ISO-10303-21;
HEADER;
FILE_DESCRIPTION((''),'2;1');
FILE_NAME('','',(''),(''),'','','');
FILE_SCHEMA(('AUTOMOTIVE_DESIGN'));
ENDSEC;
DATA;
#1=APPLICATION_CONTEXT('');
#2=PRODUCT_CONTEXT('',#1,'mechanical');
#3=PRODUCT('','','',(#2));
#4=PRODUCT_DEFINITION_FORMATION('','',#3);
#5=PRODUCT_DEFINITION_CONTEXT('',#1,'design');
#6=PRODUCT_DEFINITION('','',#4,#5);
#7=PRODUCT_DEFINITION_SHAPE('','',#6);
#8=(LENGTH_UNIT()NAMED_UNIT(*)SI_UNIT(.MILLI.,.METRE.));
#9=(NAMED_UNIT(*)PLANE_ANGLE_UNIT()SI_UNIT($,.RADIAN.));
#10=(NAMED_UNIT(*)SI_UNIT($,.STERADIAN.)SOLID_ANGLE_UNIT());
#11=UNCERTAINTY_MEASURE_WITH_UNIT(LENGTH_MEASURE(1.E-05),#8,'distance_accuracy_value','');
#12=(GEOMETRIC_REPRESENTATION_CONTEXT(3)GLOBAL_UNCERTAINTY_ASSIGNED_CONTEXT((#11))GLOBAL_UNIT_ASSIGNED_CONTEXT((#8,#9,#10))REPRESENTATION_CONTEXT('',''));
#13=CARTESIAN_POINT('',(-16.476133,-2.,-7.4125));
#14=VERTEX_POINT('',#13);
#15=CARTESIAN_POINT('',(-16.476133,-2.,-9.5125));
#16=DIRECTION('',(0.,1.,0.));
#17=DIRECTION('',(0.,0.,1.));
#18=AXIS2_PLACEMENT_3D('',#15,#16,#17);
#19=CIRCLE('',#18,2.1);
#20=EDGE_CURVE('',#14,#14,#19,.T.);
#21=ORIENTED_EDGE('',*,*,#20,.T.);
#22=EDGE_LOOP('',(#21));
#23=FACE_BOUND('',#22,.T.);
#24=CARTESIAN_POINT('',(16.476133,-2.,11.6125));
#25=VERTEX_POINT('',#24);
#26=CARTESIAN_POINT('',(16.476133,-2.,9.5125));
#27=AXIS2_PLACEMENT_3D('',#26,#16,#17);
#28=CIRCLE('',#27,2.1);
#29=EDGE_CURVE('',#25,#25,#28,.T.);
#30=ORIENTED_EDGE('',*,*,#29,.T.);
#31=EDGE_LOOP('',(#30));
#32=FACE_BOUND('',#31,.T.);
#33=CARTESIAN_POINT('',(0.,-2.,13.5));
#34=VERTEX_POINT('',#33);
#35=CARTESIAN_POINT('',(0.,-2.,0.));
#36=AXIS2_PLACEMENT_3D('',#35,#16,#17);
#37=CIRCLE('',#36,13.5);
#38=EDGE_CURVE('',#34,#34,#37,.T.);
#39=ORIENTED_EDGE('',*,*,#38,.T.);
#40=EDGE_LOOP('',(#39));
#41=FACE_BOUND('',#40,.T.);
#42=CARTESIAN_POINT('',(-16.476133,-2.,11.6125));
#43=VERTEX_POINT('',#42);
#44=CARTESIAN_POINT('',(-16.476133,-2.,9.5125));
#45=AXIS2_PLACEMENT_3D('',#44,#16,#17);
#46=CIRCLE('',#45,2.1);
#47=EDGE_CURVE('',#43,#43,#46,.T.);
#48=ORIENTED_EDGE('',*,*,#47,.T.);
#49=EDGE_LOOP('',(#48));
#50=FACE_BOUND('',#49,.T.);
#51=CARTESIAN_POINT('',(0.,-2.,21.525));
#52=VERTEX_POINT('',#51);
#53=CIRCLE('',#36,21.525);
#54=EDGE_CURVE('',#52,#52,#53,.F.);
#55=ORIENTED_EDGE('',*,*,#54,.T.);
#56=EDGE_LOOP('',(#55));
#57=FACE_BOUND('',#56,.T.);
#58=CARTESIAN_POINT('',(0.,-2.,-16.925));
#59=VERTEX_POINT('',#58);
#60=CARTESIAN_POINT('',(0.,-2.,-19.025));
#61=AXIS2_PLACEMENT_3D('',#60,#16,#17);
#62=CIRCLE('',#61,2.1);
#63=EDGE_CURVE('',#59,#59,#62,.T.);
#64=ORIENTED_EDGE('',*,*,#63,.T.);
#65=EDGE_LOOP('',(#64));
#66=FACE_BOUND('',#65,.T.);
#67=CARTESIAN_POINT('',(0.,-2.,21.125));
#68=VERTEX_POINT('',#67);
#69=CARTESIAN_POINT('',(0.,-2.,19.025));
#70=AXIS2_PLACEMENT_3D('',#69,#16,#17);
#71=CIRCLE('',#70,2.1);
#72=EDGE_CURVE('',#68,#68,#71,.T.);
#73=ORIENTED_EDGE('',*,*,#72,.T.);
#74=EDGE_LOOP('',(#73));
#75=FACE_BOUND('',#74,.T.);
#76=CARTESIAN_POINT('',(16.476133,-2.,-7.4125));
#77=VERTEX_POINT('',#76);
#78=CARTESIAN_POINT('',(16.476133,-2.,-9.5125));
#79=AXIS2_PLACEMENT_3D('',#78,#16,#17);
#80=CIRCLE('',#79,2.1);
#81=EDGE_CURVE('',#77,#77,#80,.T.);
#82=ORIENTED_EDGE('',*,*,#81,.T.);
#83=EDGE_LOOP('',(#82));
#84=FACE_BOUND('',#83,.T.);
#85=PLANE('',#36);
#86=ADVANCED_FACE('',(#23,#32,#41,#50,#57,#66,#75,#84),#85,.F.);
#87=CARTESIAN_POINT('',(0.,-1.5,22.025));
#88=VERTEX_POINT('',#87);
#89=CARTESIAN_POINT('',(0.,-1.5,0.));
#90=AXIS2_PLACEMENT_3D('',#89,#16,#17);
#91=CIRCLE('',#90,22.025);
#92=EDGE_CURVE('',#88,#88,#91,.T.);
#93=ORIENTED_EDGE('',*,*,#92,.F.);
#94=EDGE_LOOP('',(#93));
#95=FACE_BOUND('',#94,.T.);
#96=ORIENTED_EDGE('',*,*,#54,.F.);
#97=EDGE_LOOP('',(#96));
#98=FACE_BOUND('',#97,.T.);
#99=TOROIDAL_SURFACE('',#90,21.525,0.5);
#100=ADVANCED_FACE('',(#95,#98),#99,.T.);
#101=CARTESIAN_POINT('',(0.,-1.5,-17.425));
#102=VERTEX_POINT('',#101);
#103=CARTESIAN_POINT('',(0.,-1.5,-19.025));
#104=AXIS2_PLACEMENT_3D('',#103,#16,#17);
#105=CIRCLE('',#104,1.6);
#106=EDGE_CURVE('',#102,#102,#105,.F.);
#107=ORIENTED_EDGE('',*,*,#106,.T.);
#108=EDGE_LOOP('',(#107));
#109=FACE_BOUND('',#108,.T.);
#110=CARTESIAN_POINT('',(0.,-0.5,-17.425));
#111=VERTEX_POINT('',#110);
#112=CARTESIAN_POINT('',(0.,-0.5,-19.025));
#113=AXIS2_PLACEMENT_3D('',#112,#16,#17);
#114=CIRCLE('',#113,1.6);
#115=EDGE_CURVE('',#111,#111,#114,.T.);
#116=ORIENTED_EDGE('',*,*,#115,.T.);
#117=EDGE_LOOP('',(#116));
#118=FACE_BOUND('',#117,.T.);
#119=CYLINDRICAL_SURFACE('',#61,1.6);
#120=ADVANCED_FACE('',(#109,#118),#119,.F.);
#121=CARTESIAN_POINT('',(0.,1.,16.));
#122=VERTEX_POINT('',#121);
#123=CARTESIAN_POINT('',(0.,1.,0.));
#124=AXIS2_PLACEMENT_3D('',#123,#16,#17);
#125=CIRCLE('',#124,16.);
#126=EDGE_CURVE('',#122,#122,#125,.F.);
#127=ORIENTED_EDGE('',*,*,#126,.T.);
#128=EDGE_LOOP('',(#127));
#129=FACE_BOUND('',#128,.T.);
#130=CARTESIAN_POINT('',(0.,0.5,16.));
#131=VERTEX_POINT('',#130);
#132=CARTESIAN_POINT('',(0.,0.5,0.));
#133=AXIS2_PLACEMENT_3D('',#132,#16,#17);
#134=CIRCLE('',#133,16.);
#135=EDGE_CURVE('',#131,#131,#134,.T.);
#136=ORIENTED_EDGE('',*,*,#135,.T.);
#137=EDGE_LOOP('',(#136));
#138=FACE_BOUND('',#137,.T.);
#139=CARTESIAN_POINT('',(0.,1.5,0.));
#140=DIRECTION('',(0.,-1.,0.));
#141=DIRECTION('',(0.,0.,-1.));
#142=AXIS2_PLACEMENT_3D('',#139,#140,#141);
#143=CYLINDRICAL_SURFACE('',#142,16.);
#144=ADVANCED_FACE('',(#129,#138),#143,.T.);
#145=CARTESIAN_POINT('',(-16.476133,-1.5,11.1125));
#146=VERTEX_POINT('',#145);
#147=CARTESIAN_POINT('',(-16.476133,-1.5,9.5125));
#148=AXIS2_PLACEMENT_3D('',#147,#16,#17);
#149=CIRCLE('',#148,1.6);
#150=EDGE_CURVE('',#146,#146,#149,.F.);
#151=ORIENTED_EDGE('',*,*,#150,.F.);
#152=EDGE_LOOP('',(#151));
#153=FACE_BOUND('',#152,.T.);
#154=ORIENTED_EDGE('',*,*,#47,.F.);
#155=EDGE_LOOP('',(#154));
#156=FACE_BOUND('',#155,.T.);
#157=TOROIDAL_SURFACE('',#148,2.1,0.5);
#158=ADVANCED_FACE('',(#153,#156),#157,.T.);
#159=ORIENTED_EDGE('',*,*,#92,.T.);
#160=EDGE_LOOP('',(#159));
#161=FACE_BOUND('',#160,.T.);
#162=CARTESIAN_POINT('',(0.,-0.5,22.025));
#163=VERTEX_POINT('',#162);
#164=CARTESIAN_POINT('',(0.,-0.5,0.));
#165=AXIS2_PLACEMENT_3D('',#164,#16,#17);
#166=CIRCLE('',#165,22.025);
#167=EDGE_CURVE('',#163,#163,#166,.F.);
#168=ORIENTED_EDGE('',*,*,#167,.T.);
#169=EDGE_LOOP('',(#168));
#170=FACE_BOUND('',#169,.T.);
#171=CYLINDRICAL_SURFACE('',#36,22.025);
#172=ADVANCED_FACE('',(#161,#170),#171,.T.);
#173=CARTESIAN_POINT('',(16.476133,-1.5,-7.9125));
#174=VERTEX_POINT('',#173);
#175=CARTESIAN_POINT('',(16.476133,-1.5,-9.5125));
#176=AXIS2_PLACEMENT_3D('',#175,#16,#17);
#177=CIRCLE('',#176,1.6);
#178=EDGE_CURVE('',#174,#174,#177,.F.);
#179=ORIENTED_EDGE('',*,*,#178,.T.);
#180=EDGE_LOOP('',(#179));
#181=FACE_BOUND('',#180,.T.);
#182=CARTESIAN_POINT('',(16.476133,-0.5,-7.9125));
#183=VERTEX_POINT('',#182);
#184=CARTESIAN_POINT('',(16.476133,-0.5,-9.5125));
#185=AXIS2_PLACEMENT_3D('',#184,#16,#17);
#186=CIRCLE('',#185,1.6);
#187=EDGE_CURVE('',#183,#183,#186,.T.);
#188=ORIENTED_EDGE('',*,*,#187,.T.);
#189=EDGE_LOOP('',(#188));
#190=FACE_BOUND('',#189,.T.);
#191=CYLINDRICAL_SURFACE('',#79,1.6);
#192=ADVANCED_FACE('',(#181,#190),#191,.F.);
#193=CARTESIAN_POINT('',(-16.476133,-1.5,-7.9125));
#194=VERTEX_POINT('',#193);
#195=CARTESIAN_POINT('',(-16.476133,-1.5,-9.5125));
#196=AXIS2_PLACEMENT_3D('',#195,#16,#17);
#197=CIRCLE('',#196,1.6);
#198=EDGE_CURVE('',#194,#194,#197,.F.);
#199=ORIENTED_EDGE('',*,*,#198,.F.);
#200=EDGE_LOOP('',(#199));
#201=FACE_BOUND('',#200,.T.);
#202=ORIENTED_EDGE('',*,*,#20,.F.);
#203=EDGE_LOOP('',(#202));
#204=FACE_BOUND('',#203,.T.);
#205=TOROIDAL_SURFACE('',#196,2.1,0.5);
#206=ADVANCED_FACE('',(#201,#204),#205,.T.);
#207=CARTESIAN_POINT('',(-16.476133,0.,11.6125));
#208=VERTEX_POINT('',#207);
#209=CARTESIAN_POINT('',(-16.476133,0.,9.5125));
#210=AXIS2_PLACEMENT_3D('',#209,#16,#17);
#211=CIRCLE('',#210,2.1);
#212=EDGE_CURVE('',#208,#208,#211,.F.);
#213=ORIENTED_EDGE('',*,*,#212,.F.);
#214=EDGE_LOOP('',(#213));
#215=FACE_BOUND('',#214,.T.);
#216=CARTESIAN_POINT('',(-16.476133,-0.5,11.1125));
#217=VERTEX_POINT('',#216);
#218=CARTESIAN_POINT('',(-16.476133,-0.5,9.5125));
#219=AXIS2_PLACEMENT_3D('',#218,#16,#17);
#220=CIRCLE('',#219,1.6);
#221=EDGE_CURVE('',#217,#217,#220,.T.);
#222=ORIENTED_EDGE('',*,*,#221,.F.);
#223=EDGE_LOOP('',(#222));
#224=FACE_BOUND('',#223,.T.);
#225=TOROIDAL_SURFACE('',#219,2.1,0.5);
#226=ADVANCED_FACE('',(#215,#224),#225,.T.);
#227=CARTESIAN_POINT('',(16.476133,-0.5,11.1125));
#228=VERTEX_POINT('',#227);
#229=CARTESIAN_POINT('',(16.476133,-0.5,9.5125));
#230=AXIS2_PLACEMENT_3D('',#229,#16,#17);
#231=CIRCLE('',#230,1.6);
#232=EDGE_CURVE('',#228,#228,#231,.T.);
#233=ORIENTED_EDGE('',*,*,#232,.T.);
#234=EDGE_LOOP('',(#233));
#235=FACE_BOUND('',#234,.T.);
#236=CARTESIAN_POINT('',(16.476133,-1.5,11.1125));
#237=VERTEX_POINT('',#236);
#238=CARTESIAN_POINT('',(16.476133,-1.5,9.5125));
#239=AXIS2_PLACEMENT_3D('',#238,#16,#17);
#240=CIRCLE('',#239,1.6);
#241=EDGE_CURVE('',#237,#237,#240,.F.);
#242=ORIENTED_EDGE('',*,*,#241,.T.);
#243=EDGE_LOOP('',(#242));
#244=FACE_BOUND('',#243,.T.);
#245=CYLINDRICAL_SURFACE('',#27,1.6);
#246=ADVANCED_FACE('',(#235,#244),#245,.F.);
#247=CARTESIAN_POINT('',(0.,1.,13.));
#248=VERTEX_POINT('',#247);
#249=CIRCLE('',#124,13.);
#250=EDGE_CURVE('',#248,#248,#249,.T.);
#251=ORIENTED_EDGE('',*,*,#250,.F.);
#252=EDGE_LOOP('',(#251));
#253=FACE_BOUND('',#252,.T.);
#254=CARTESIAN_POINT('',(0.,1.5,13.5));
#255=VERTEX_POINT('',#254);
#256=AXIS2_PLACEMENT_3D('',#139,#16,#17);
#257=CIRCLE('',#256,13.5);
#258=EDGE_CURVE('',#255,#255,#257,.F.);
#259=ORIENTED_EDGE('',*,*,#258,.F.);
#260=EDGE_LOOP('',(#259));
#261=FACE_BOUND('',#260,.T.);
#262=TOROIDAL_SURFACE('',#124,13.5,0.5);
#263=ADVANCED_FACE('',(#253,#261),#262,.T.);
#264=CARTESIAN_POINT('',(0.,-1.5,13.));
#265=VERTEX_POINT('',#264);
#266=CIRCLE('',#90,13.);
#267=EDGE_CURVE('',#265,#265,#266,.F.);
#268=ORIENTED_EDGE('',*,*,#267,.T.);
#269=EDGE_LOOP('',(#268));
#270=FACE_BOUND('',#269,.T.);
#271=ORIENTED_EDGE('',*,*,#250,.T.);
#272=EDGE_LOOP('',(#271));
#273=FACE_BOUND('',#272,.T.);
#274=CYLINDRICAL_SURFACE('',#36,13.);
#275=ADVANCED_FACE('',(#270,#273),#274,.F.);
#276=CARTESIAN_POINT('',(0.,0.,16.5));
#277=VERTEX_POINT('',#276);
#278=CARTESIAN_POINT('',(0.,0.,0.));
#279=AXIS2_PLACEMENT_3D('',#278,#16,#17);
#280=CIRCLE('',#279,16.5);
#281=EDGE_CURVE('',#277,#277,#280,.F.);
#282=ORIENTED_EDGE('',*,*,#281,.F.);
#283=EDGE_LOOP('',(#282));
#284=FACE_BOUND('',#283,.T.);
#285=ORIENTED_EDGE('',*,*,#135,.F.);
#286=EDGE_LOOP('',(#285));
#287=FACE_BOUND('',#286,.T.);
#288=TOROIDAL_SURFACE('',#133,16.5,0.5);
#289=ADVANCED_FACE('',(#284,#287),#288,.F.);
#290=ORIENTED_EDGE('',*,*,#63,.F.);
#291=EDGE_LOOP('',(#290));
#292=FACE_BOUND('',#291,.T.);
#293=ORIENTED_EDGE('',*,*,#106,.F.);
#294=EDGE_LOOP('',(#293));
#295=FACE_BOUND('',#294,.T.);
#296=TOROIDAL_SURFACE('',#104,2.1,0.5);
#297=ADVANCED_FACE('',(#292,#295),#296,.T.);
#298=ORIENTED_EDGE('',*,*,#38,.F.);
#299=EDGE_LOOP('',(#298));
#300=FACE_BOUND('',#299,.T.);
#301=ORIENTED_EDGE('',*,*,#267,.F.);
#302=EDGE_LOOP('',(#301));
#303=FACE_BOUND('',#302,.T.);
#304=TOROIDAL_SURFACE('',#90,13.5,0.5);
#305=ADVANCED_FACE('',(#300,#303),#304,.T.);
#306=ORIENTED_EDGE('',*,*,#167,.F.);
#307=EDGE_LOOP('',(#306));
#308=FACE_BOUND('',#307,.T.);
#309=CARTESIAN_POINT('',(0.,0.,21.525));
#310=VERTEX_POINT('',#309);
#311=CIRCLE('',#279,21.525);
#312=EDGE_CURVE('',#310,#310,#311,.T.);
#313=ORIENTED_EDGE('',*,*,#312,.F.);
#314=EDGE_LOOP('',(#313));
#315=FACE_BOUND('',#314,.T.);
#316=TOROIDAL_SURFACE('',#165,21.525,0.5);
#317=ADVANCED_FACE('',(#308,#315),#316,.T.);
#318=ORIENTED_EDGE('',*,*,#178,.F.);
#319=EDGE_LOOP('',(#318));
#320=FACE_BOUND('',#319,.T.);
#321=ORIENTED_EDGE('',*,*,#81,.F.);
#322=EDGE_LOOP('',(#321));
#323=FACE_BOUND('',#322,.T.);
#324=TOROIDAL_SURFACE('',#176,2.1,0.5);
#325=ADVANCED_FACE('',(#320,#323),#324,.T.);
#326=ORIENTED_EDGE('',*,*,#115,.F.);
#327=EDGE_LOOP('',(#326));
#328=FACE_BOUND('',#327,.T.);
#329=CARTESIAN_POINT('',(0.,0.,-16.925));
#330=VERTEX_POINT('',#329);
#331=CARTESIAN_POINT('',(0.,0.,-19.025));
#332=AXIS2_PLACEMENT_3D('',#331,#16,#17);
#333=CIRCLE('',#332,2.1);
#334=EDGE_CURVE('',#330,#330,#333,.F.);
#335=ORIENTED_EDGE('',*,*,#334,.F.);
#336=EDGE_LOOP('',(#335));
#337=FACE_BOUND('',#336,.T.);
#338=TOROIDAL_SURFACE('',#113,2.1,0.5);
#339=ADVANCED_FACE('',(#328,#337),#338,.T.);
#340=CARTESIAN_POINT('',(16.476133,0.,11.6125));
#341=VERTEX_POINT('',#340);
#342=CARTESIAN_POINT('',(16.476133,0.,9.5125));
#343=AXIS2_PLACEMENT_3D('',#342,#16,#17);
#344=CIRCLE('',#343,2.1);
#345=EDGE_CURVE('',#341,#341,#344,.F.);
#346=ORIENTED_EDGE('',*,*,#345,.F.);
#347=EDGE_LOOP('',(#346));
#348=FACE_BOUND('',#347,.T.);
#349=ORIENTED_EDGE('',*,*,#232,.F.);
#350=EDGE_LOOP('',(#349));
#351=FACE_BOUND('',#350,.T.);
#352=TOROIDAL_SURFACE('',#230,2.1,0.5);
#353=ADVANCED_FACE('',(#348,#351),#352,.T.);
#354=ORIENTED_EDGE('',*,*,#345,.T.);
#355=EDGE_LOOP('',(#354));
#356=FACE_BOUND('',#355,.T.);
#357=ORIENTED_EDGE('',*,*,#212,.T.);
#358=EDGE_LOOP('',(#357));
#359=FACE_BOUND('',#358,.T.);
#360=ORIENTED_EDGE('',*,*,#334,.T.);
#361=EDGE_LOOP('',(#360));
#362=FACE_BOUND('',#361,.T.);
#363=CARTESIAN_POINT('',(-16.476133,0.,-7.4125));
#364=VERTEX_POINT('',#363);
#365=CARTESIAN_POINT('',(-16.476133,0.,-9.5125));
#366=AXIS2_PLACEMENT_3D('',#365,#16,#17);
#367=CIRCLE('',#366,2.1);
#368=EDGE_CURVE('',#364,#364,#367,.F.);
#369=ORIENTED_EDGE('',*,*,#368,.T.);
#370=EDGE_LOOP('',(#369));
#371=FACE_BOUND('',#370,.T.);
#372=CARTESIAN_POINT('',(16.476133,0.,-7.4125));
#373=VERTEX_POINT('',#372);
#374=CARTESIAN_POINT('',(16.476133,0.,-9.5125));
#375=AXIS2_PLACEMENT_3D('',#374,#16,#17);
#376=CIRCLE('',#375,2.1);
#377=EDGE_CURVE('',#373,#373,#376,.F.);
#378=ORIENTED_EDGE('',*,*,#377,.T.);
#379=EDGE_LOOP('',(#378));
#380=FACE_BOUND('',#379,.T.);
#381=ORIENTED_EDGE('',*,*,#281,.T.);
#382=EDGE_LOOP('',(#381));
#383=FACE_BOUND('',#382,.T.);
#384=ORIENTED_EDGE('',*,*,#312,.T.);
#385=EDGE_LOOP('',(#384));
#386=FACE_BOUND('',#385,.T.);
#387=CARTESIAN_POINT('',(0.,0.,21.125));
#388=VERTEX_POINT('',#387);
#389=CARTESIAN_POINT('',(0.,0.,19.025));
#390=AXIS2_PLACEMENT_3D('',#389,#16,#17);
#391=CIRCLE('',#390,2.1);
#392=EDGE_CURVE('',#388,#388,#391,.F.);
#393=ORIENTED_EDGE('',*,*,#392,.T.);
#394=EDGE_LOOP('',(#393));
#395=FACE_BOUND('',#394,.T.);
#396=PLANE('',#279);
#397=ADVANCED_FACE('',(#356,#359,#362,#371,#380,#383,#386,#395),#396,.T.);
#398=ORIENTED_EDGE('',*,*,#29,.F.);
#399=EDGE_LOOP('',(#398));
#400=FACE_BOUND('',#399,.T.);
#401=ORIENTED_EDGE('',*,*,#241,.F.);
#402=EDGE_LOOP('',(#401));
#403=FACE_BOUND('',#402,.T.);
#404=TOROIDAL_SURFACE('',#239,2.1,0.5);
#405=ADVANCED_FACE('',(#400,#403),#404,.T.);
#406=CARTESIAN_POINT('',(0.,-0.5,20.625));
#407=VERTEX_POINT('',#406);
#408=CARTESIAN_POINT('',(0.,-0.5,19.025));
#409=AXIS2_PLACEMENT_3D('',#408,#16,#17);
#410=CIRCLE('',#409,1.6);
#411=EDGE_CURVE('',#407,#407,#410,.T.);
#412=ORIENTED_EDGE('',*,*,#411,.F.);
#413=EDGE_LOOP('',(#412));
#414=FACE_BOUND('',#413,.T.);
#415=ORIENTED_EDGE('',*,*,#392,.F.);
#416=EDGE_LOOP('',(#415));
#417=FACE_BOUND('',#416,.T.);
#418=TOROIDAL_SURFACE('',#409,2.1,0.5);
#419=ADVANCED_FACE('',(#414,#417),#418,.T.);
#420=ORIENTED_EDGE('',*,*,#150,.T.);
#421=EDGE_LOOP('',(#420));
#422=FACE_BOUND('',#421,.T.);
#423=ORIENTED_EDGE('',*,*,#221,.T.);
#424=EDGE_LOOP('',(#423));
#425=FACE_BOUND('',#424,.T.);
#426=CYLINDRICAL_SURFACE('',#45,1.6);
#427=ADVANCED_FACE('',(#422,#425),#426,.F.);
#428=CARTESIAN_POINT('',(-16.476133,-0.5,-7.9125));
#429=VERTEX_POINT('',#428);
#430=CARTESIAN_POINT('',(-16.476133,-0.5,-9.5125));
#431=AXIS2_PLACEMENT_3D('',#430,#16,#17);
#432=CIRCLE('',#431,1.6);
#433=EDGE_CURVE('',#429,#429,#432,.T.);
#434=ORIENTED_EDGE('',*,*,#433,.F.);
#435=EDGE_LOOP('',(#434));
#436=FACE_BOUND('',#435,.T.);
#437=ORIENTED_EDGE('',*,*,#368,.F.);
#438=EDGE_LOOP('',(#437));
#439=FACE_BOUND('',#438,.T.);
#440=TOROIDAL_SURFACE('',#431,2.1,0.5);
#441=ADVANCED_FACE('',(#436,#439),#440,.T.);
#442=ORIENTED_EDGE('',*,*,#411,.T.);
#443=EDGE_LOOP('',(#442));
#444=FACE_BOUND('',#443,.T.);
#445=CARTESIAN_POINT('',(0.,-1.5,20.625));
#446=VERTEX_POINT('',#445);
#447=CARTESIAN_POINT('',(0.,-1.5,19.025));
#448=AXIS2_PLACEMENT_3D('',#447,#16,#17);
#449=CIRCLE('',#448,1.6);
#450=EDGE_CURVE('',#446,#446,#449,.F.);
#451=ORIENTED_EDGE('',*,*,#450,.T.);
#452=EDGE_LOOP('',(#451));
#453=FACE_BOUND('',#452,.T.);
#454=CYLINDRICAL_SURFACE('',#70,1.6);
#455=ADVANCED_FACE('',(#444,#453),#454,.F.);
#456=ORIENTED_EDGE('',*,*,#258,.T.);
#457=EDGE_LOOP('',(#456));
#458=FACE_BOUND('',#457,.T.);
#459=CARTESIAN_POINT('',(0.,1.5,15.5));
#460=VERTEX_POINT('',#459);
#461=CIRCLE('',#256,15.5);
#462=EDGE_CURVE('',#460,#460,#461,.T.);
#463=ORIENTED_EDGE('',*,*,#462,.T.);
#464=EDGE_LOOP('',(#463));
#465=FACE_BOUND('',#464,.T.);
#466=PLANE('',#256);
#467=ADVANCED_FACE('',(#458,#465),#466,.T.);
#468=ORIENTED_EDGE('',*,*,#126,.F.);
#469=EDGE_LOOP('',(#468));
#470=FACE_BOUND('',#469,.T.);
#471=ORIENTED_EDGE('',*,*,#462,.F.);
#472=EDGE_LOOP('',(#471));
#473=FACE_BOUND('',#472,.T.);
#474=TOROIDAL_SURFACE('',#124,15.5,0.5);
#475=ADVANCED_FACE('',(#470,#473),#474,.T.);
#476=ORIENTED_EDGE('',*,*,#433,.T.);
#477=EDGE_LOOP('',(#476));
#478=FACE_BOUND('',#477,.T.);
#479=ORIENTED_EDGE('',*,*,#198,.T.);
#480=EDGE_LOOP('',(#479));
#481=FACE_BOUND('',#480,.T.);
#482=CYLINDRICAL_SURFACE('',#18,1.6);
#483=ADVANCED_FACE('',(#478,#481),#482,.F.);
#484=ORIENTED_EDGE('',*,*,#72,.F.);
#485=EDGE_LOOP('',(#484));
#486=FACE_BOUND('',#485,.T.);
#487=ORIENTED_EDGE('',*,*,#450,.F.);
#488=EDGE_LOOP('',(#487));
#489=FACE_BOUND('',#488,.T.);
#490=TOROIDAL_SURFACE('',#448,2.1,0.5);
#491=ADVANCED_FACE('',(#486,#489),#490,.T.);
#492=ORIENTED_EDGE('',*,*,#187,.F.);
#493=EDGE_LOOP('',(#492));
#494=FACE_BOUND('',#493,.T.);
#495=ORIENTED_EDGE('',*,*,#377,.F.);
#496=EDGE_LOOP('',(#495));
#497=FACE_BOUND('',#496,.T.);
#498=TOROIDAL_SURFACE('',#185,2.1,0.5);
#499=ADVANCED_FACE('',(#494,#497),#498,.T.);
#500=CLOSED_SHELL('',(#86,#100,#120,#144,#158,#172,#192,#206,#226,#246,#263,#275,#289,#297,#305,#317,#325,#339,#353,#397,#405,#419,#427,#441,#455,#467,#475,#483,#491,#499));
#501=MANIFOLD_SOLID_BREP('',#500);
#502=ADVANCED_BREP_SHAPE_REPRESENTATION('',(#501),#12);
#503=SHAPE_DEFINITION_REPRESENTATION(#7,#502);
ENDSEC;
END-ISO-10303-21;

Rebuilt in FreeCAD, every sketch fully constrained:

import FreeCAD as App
import Part
import Sketcher
Q = App.Units.Quantity


def edges_at(feature, points):
    """Names of the edges that pass closest to the given points."""
    edges = feature.Shape.Edges
    near = lambda p: min(range(len(edges)), key=lambda i: edges[i].distToShape(Part.Vertex(*p))[0])
    return sorted({f"Edge{near(p) + 1}" for p in points})

doc = App.newDocument("Part")
body = doc.addObject("PartDesign::Body", "Body")

# Sketch on XZ plane
sketch1 = doc.addObject("Sketcher::SketchObject", "Sketch")
body.addObject(sketch1)
sketch1.AttachmentSupport = (doc.XZ_Plane, [""])
sketch1.MapMode = "FlatFace"
sketch1.addGeometry([
    Part.Circle(App.Vector(0, 0, 0), App.Vector(0, 0, 1), 22),  # 0
    Part.Circle(App.Vector(-16.5, -9.5, 0), App.Vector(0, 0, 1), 1.6),  # 1
    Part.Circle(App.Vector(0, -19, 0), App.Vector(0, 0, 1), 1.6),  # 2
    Part.Circle(App.Vector(-16.5, 9.5, 0), App.Vector(0, 0, 1), 1.6),  # 3
    Part.Circle(App.Vector(16.5, -9.5, 0), App.Vector(0, 0, 1), 1.6),  # 4
    Part.Circle(App.Vector(0, 0, 0), App.Vector(0, 0, 1), 13),  # 5
    Part.Circle(App.Vector(0, 19, 0), App.Vector(0, 0, 1), 1.6),  # 6
    Part.Circle(App.Vector(16.5, 9.5, 0), App.Vector(0, 0, 1), 1.6),  # 7
], False)
sketch1.addConstraint([
    Sketcher.Constraint("Coincident", 0, 3, -1, 1),
    Sketcher.Constraint("Coincident", 5, 3, -1, 1),
    Sketcher.Constraint("Equal", 1, 2),
    Sketcher.Constraint("Equal", 2, 3),
    Sketcher.Constraint("Equal", 3, 4),
    Sketcher.Constraint("Equal", 4, 6),
    Sketcher.Constraint("Equal", 6, 7),
    Sketcher.Constraint("Symmetric", 3, 3, 4, 3, -1, 1),
    Sketcher.Constraint("Symmetric", 2, 3, 6, 3, -1, 1),
    Sketcher.Constraint("Symmetric", 1, 3, 7, 3, -1, 1),
    Sketcher.Constraint("Symmetric", 1, 3, 4, 3, -2),
    Sketcher.Constraint("PointOnObject", 2, 3, -2),
    Sketcher.Constraint("Diameter", 5, Q("26 mm")),
    Sketcher.Constraint("Diameter", 1, Q("3.2 mm")),
    Sketcher.Constraint("Diameter", 0, Q("44.05 mm")),
    Sketcher.Constraint("DistanceY", 2, 3, -1, 1, Q("19.025 mm")),
    Sketcher.Constraint("DistanceY", 1, 3, 3, 3, Q("19.025 mm")),
    Sketcher.Constraint("DistanceX", 1, 3, -1, 1, Q("16.476133 mm")),
])
pad1 = doc.addObject("PartDesign::Pad", "Pad")
body.addObject(pad1)
pad1.Profile = sketch1
pad1.Length = 2

# Sketch on XZ plane
sketch2 = doc.addObject("Sketcher::SketchObject", "Sketch001")
body.addObject(sketch2)
sketch2.AttachmentSupport = (doc.XZ_Plane, [""])
sketch2.MapMode = "FlatFace"
sketch2.AttachmentOffset = App.Placement(App.Vector(0, 0, -1.5), App.Rotation())
sketch2.addGeometry([
    Part.Circle(App.Vector(0, 0, 0), App.Vector(0, 0, 1), 16),
    Part.Circle(App.Vector(0, 0, 0), App.Vector(0, 0, 1), 13),
], False)
sketch2.addConstraint([
    Sketcher.Constraint("Coincident", 0, 3, -1, 1),
    Sketcher.Constraint("Coincident", 1, 3, -1, 1),
    Sketcher.Constraint("Diameter", 0, Q("32 mm")),
    Sketcher.Constraint("Diameter", 1, Q("26 mm")),
])
pad2 = doc.addObject("PartDesign::Pad", "Pad001")
body.addObject(pad2)
pad2.Profile = sketch2
pad2.Length = 1.5
doc.recompute()

fillet = doc.addObject("PartDesign::Fillet", "Fillet")
body.addObject(fillet)
fillet.Base = (pad2, edges_at(pad2, [
    (16.476, -2, -11.113),
    (16.476, 0, -11.113),
    (16.476, -2, 7.912),
    (16.476, 0, 7.912),
    (0, 0, -22.025),
    (0, -2, 17.425),
    (0, 0, 17.425),
    (-16.476, -2, 7.912),
    (-16.476, 0, 7.912),
    (-16.476, -2, -11.113),
    (-16.476, 0, -11.113),
    (0, 1.5, -16),
    (0, 0, -16),
    (0, 1.5, -13),
    (0, -2, -22.025),
    (0, -2, -20.625),
    (0, 0, -20.625),
    (0, -2, -13),
]))
fillet.Radius = 0.5

doc.recompute()
